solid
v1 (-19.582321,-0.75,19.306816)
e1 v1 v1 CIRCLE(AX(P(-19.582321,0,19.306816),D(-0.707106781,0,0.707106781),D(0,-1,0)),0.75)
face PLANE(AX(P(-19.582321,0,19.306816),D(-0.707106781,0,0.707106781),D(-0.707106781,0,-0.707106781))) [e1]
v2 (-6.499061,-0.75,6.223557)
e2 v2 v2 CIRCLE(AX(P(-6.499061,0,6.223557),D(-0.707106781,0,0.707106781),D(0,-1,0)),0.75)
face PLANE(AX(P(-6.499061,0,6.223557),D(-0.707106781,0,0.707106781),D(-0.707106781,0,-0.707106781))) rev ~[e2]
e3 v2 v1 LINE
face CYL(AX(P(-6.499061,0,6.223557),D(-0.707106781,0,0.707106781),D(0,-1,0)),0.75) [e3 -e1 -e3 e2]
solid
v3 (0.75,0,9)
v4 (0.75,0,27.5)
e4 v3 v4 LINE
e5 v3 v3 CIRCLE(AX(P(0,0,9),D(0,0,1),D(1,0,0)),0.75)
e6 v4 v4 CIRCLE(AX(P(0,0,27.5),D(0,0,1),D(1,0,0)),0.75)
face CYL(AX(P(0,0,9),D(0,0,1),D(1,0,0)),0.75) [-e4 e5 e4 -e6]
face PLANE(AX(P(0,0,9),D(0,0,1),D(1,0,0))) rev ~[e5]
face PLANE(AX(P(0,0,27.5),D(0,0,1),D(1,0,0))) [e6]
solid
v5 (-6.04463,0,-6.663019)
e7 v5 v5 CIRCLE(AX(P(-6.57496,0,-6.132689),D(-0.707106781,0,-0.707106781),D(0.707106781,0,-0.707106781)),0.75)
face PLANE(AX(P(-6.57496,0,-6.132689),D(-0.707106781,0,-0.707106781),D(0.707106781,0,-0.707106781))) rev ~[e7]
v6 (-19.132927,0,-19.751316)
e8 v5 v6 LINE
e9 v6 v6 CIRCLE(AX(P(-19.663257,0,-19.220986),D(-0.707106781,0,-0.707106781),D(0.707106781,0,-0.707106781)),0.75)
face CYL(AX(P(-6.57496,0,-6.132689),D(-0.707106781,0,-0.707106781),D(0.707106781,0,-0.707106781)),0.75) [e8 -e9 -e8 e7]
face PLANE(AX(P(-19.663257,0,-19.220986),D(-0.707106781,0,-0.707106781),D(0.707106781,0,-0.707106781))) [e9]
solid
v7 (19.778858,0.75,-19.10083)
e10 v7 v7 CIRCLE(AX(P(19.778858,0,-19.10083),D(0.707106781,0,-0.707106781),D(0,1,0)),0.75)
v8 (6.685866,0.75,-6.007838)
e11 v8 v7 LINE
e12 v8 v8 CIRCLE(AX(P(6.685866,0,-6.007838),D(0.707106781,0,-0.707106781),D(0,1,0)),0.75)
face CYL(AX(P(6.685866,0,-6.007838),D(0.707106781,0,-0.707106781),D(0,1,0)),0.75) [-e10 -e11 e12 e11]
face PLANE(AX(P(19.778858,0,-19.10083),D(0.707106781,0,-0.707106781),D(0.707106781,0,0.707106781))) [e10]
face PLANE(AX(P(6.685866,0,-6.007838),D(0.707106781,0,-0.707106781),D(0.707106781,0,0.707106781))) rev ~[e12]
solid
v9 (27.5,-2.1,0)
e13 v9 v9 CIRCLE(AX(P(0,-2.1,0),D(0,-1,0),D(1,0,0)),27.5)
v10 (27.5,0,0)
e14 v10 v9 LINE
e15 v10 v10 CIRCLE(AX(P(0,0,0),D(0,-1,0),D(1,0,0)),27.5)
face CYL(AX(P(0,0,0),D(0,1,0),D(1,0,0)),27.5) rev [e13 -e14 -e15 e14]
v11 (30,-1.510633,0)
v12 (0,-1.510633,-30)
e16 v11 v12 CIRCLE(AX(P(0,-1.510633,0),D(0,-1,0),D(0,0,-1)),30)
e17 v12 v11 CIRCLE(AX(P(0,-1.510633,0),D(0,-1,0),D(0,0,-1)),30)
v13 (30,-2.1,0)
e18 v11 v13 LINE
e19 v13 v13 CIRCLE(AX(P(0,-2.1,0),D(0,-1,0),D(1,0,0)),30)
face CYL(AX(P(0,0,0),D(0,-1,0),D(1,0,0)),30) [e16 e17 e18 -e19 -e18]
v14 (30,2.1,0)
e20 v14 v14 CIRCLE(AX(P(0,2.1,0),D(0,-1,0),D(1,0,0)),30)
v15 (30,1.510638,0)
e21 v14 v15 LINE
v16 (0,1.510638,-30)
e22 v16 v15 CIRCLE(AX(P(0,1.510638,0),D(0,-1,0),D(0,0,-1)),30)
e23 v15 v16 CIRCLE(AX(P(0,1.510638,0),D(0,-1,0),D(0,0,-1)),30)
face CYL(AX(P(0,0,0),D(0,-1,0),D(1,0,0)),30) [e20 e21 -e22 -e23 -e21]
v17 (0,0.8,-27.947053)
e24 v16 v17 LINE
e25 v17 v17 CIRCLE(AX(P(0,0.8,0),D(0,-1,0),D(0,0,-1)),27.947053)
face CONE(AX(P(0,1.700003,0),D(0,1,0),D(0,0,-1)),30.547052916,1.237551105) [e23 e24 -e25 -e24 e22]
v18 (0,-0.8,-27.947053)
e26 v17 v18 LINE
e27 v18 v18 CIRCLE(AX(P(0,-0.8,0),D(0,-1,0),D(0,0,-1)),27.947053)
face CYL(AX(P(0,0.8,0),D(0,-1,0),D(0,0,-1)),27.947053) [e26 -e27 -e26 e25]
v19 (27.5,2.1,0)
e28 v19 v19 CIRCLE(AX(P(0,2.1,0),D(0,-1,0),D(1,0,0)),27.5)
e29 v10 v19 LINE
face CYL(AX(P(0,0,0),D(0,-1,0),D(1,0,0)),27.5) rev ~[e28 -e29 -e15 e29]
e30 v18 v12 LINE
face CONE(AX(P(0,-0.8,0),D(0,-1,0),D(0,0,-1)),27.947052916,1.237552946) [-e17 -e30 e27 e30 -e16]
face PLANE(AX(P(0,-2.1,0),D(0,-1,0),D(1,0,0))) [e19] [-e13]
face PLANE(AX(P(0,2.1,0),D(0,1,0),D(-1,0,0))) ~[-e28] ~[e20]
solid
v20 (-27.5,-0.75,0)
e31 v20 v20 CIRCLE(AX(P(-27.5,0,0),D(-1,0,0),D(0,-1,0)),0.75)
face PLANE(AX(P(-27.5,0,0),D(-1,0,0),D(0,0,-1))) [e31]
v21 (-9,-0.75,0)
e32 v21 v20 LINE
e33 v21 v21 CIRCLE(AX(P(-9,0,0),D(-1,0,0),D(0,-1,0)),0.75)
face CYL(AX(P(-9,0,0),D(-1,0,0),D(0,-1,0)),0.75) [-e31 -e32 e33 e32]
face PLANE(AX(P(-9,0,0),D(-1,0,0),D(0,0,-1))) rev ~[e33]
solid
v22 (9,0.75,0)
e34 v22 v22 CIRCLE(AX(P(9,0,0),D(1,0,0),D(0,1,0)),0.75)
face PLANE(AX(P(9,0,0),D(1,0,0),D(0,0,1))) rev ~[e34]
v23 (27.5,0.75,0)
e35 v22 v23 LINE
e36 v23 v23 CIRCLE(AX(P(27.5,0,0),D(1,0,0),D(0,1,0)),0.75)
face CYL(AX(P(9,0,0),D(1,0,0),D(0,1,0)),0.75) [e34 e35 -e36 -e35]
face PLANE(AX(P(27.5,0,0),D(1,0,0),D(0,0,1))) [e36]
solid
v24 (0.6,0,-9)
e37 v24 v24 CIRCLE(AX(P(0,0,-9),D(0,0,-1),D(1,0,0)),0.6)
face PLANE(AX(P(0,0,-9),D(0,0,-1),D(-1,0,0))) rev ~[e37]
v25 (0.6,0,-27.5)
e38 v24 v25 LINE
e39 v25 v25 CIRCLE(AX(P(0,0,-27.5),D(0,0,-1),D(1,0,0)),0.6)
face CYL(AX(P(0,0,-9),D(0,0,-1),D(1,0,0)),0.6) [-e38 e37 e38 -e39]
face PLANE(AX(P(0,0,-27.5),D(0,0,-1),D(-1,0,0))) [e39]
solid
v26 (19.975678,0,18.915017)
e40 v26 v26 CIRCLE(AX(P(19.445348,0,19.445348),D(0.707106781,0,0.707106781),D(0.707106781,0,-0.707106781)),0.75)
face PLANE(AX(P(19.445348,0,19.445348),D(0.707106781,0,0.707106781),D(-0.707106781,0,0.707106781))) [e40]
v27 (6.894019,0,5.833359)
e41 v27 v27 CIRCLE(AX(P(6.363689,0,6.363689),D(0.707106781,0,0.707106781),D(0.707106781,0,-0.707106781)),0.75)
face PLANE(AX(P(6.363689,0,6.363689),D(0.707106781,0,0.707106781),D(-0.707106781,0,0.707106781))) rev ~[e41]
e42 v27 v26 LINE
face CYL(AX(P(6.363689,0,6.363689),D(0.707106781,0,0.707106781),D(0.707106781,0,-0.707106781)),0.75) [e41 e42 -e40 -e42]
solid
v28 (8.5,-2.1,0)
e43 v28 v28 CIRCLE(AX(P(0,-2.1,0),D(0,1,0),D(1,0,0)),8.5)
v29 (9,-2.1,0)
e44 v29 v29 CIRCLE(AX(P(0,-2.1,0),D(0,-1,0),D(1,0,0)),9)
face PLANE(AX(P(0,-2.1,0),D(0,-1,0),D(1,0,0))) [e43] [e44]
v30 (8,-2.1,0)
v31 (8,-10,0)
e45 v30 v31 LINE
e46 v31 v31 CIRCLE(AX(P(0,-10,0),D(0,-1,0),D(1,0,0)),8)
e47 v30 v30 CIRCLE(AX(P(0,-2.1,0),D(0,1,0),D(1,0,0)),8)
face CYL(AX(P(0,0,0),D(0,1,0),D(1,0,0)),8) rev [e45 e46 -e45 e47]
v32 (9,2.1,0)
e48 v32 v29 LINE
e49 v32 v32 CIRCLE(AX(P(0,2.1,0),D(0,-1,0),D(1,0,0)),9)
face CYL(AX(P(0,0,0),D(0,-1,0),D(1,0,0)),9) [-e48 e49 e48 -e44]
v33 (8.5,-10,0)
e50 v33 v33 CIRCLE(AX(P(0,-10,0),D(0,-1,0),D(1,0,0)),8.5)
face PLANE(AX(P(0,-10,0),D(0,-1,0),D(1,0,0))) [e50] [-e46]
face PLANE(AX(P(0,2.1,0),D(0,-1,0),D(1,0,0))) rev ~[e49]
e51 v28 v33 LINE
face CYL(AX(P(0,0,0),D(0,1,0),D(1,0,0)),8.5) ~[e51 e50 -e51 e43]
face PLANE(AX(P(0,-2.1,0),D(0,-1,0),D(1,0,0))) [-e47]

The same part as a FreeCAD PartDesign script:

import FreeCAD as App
import Part
import Sketcher

doc = App.newDocument("Part")
body = doc.addObject("PartDesign::Body", "Body")

# Sketch on XZ plane
sketch1 = doc.addObject("Sketcher::SketchObject", "Sketch")
body.addObject(sketch1)
sketch1.AttachmentSupport = (doc.XZ_Plane, [""])
sketch1.MapMode = "FlatFace"
sketch1.addGeometry([
    Part.Circle(App.Vector(0, 0, 0), App.Vector(0, 0, 1), 30),
    Part.Circle(App.Vector(0, 0, 0), App.Vector(0, 0, 1), 28),
], False)
sketch1.addConstraint([
    Sketcher.Constraint("Coincident", 0, 3, -1, 1),
    Sketcher.Constraint("Coincident", 1, 3, -1, 1),
    Sketcher.Constraint("Diameter", 0, 60.0),
    Sketcher.Constraint("Diameter", 1, 55.0),
])
pad1 = doc.addObject("PartDesign::Pad", "Pad")
body.addObject(pad1)
pad1.Profile = sketch1
pad1.Length = 2.1
body2 = doc.addObject("PartDesign::Body", "Body001")
doc.recompute()

body2.BaseFeature = body
doc.recompute()

mirroring = doc.addObject("Part::Mirroring", "Mirroring")
mirroring.Source = body
mirroring.Base = App.Vector(0, 0, 0)
mirroring.Normal = App.Vector(0, -1, 0)
body3 = doc.addObject("PartDesign::Body", "Body002")
body3.BaseFeature = mirroring
boolean = doc.addObject("PartDesign::Boolean", "Boolean")
body2.addObject(boolean)
boolean.Type = "Fuse"
boolean.addObjects([body3])
doc.recompute()

# Sketch on YZ plane
sketch2 = doc.addObject("Sketcher::SketchObject", "Sketch001")
body2.addObject(sketch2)
sketch2.AttachmentSupport = (doc.getObject("YZ_Plane001"), [""])
sketch2.MapMode = "FlatFace"
sketch2.addGeometry([
    Part.LineSegment(App.Vector(-1.7, -30.5, 0), App.Vector(1.7, -30.5, 0)),
    Part.LineSegment(App.Vector(1.7, -30.5, 0), App.Vector(0.8, -27.9, 0)),
    Part.LineSegment(App.Vector(0.8, -27.9, 0), App.Vector(-0.8, -27.9, 0)),
    Part.LineSegment(App.Vector(-0.8, -27.9, 0), App.Vector(-1.7, -30.5, 0)),
], False)
sketch2.addConstraint([
    Sketcher.Constraint("Coincident", 0, 2, 1, 1),
    Sketcher.Constraint("Coincident", 1, 2, 2, 1),
    Sketcher.Constraint("Coincident", 2, 2, 3, 1),
    Sketcher.Constraint("Coincident", 3, 2, 0, 1),
    Sketcher.Constraint("Horizontal", 0),
    Sketcher.Constraint("Horizontal", 2),
    Sketcher.Constraint("Equal", 1, 3),
    Sketcher.Constraint("DistanceX", 0, 1, 0, 2, 3.4),
    Sketcher.Constraint("DistanceX", 2, 2, 2, 1, 1.6),
    Sketcher.Constraint("DistanceX", -1, 1, 1, 2, 0.8),
    Sketcher.Constraint("DistanceY", 0, 2, 1, 2, 2.6),
    Sketcher.Constraint("DistanceY", 0, 2, -1, 1, 30.547053),
])
groove = doc.addObject("PartDesign::Groove", "Groove")
body2.addObject(groove)
groove.Profile = sketch2
groove.ReferenceAxis = (sketch2, ["H_Axis"])
groove.Angle = 360
body4 = doc.addObject("PartDesign::Body", "Body003")

# Sketch on XZ plane
sketch3 = doc.addObject("Sketcher::SketchObject", "Sketch002")
body4.addObject(sketch3)
sketch3.AttachmentSupport = (doc.getObject("XZ_Plane003"), [""])
sketch3.MapMode = "FlatFace"
sketch3.addGeometry([
    Part.Circle(App.Vector(0, 0, 0), App.Vector(0, 0, 1), 8),
    Part.Circle(App.Vector(0, 0, 0), App.Vector(0, 0, 1), 8),
], False)
sketch3.addConstraint([
    Sketcher.Constraint("Coincident", 0, 3, -1, 1),
    Sketcher.Constraint("Coincident", 1, 3, -1, 1),
    Sketcher.Constraint("Diameter", 0, 17.0),
    Sketcher.Constraint("Diameter", 1, 16.0),
])
pad2 = doc.addObject("PartDesign::Pad", "Pad001")
body4.addObject(pad2)
pad2.Profile = sketch3
pad2.Length = 10

# Sketch on XZ plane
sketch4 = doc.addObject("Sketcher::SketchObject", "Sketch003")
body4.addObject(sketch4)
sketch4.AttachmentSupport = (doc.getObject("XZ_Plane003"), [""])
sketch4.MapMode = "FlatFace"
sketch4.addGeometry(Part.Circle(App.Vector(0, 0, 0), App.Vector(0, 0, 1), 9), False)
sketch4.addConstraint([
    Sketcher.Constraint("Coincident", 0, 3, -1, 1),
    Sketcher.Constraint("Diameter", 0, 18.0),
])
pad3 = doc.addObject("PartDesign::Pad", "Pad002")
body4.addObject(pad3)
pad3.Profile = sketch4
pad3.Length = 2.1

# Sketch on XZ plane
sketch5 = doc.addObject("Sketcher::SketchObject", "Sketch004")
body4.addObject(sketch5)
sketch5.AttachmentSupport = (doc.getObject("XZ_Plane003"), [""])
sketch5.MapMode = "FlatFace"
sketch5.addGeometry(Part.Circle(App.Vector(0, 0, 0), App.Vector(0, 0, 1), 9), False)
sketch5.addConstraint([
    Sketcher.Constraint("Coincident", 0, 3, -1, 1),
    Sketcher.Constraint("Diameter", 0, 18.0),
])
pad4 = doc.addObject("PartDesign::Pad", "Pad003")
body4.addObject(pad4)
pad4.Profile = sketch5
pad4.Length = 2.1
pad4.Reversed = True
body5 = doc.addObject("PartDesign::Body", "Body004")

# Sketch on YZ plane
sketch6 = doc.addObject("Sketcher::SketchObject", "Sketch005")
body5.addObject(sketch6)
sketch6.AttachmentSupport = (doc.getObject("YZ_Plane004"), [""])
sketch6.MapMode = "FlatFace"
sketch6.AttachmentOffset = App.Placement(App.Vector(0, 0, 9), App.Rotation())
sketch6.addGeometry(Part.Circle(App.Vector(0, 0, 0), App.Vector(0, 0, 1), 0.8), False)
sketch6.addConstraint([
    Sketcher.Constraint("Coincident", 0, 3, -1, 1),
    Sketcher.Constraint("Diameter", 0, 1.5),
])

# Sketch on XY plane
sketch7 = doc.addObject("Sketcher::SketchObject", "Sketch006")
body5.addObject(sketch7)
sketch7.AttachmentSupport = (doc.getObject("XY_Plane004"), [""])
sketch7.MapMode = "FlatFace"
sketch7.addGeometry(Part.LineSegment(App.Vector(9, 0, 0), App.Vector(28, 0, 0)), False)
sketch7.addConstraint([
    Sketcher.Constraint("Horizontal", 0),
    Sketcher.Constraint("PointOnObject", 0, 1, -1),
    Sketcher.Constraint("DistanceX", 0, 1, 0, 2, 18.5),
    Sketcher.Constraint("DistanceX", -1, 1, 0, 1, 9.0),
])
doc.recompute()

additivepipe = doc.addObject("PartDesign::AdditivePipe", "AdditivePipe")
body5.addObject(additivepipe)
additivepipe.Profile = sketch6
additivepipe.Spine = (sketch7, ["Edge1"])
body6 = doc.addObject("PartDesign::Body", "Body005")

# Sketch on an angled plane
sketch8 = doc.addObject("Sketcher::SketchObject", "Sketch007")
body6.addObject(sketch8)
sketch8.Placement = App.Placement(App.Vector(6.346852, 0, -6.346852), App.Rotation(App.Vector(0, 1, 0), App.Vector(0.707106781, 0, 0.707106781), App.Vector(0.707106781, 0, -0.707106781), "ZXY"))
sketch8.addGeometry(Part.Circle(App.Vector(0, 0.5, 0), App.Vector(0, 0, 1), 0.8), False)
sketch8.addConstraint([
    Sketcher.Constraint("PointOnObject", 0, 3, -2),
    Sketcher.Constraint("Diameter", 0, 1.5),
    Sketcher.Constraint("DistanceY", -1, 1, 0, 3, 0.479439),
])

# Sketch on an angled plane
sketch9 = doc.addObject("Sketcher::SketchObject", "Sketch008")
body6.addObject(sketch9)
sketch9.Placement = App.Placement(App.Vector(0.466339, 0, 0.466339), App.Rotation(App.Vector(0.707106781, 0, -0.707106781), App.Vector(0, 0.999999999, 0), App.Vector(0.707106781, 0, 0.707106781), "ZXY"))
sketch9.addGeometry(Part.LineSegment(App.Vector(9, 0, 0), App.Vector(27, 0, 0)), False)
sketch9.addConstraint([
    Sketcher.Constraint("Horizontal", 0),
    Sketcher.Constraint("PointOnObject", 0, 1, -1),
    Sketcher.Constraint("DistanceX", 0, 1, 0, 2, 18.516287),
    Sketcher.Constraint("DistanceX", -1, 1, 0, 2, 27.492091),
])
doc.recompute()

additivepipe2 = doc.addObject("PartDesign::AdditivePipe", "AdditivePipe001")
body6.addObject(additivepipe2)
additivepipe2.Profile = sketch8
additivepipe2.Spine = (sketch9, ["Edge1"])
body7 = doc.addObject("PartDesign::Body", "Body006")

# Sketch on XY plane
sketch10 = doc.addObject("Sketcher::SketchObject", "Sketch009")
body7.addObject(sketch10)
sketch10.AttachmentSupport = (doc.getObject("XY_Plane006"), [""])
sketch10.MapMode = "FlatFace"
sketch10.AttachmentOffset = App.Placement(App.Vector(0, 0, -9), App.Rotation())
sketch10.addGeometry(Part.Circle(App.Vector(0, 0, 0), App.Vector(0, 0, 1), 0.6), False)
sketch10.addConstraint([
    Sketcher.Constraint("Coincident", 0, 3, -1, 1),
    Sketcher.Constraint("Diameter", 0, 1.2),
])

# Sketch on XZ plane
sketch11 = doc.addObject("Sketcher::SketchObject", "Sketch010")
body7.addObject(sketch11)
sketch11.AttachmentSupport = (doc.getObject("XZ_Plane006"), [""])
sketch11.MapMode = "FlatFace"
sketch11.addGeometry(Part.LineSegment(App.Vector(0, -9, 0), App.Vector(0, -28, 0)), False)
sketch11.addConstraint([
    Sketcher.Constraint("Vertical", 0),
    Sketcher.Constraint("PointOnObject", 0, 1, -2),
    Sketcher.Constraint("DistanceY", 0, 2, 0, 1, 18.5),
    Sketcher.Constraint("DistanceY", 0, 1, -1, 1, 9.0),
])
doc.recompute()

additivepipe3 = doc.addObject("PartDesign::AdditivePipe", "AdditivePipe002")
body7.addObject(additivepipe3)
additivepipe3.Profile = sketch10
additivepipe3.Spine = (sketch11, ["Edge1"])
body8 = doc.addObject("PartDesign::Body", "Body007")

# Sketch on an angled plane
sketch12 = doc.addObject("Sketcher::SketchObject", "Sketch011")
body8.addObject(sketch12)
sketch12.Placement = App.Placement(App.Vector(-6.353825, 0, -6.353825), App.Rotation(App.Vector(0.707106781, 0, -0.707106781), App.Vector(0, -0.999999999, 0), App.Vector(-0.707106781, 0, -0.707106781), "ZXY"))
sketch12.addGeometry(Part.Circle(App.Vector(-0.3, 0, 0), App.Vector(0, 0, 1), 0.8), False)
sketch12.addConstraint([
    Sketcher.Constraint("PointOnObject", 0, 3, -1),
    Sketcher.Constraint("Diameter", 0, 1.5),
    Sketcher.Constraint("DistanceX", 0, 3, -1, 1, 0.312733),
])

# Sketch on an angled plane
sketch13 = doc.addObject("Sketcher::SketchObject", "Sketch012")
body8.addObject(sketch13)
sketch13.Placement = App.Placement(App.Vector(-0.359044, 0, 0.359044), App.Rotation(App.Vector(-0.707106781, 0, -0.707106781), App.Vector(0, 0.999999999, 0), App.Vector(0.707106781, 0, -0.707106781), "ZXY"))
sketch13.addGeometry(Part.LineSegment(App.Vector(9, 0, 0), App.Vector(27, 0, 0)), False)
sketch13.addConstraint([
    Sketcher.Constraint("Horizontal", 0),
    Sketcher.Constraint("PointOnObject", 0, 1, -1),
    Sketcher.Constraint("DistanceX", 0, 1, 0, 2, 18.509647),
    Sketcher.Constraint("DistanceX", -1, 1, 0, 2, 27.495312),
])
doc.recompute()

additivepipe4 = doc.addObject("PartDesign::AdditivePipe", "AdditivePipe003")
body8.addObject(additivepipe4)
additivepipe4.Profile = sketch12
additivepipe4.Spine = (sketch13, ["Edge1"])
body9 = doc.addObject("PartDesign::Body", "Body008")

# Sketch on YZ plane
sketch14 = doc.addObject("Sketcher::SketchObject", "Sketch013")
body9.addObject(sketch14)
sketch14.AttachmentSupport = (doc.getObject("YZ_Plane008"), [""])
sketch14.MapMode = "FlatFace"
sketch14.AttachmentOffset = App.Placement(App.Vector(0, 0, -9), App.Rotation())
sketch14.addGeometry(Part.Circle(App.Vector(0, 0, 0), App.Vector(0, 0, 1), 0.8), False)
sketch14.addConstraint([
    Sketcher.Constraint("Coincident", 0, 3, -1, 1),
    Sketcher.Constraint("Diameter", 0, 1.5),
])

# Sketch on XY plane
sketch15 = doc.addObject("Sketcher::SketchObject", "Sketch014")
body9.addObject(sketch15)
sketch15.AttachmentSupport = (doc.getObject("XY_Plane008"), [""])
sketch15.MapMode = "FlatFace"
sketch15.addGeometry(Part.LineSegment(App.Vector(-9, 0, 0), App.Vector(-28, 0, 0)), False)
sketch15.addConstraint([
    Sketcher.Constraint("Horizontal", 0),
    Sketcher.Constraint("PointOnObject", 0, 1, -1),
    Sketcher.Constraint("DistanceX", 0, 2, 0, 1, 18.5),
    Sketcher.Constraint("DistanceX", 0, 1, -1, 1, 9.0),
])
doc.recompute()

additivepipe5 = doc.addObject("PartDesign::AdditivePipe", "AdditivePipe004")
body9.addObject(additivepipe5)
additivepipe5.Profile = sketch14
additivepipe5.Spine = (sketch15, ["Edge1"])
body10 = doc.addObject("PartDesign::Body", "Body009")

# Sketch on an angled plane
sketch16 = doc.addObject("Sketcher::SketchObject", "Sketch015")
body10.addObject(sketch16)
sketch16.Placement = App.Placement(App.Vector(-6.361309, 0, 6.361309), App.Rotation(App.Vector(0, -1, 0), App.Vector(0.707106781, 0, 0.707106781), App.Vector(-0.707106781, 0, 0.707106781), "ZXY"))
sketch16.addGeometry(Part.Circle(App.Vector(0, -0.2, 0), App.Vector(0, 0, 1), 0.8), False)
sketch16.addConstraint([
    Sketcher.Constraint("PointOnObject", 0, 3, -2),
    Sketcher.Constraint("Diameter", 0, 1.5),
    Sketcher.Constraint("DistanceY", 0, 3, -1, 1, 0.194811),
])

# Sketch on an angled plane
sketch17 = doc.addObject("Sketcher::SketchObject", "Sketch016")
body10.addObject(sketch17)
sketch17.Placement = App.Placement(App.Vector(-0.183715, 0, -0.183715), App.Rotation(App.Vector(-0.707106781, 0, 0.707106781), App.Vector(0, 0.999999999, 0), App.Vector(-0.707106781, 0, -0.707106781), "ZXY"))
sketch17.addGeometry(Part.LineSegment(App.Vector(9, 0, 0), App.Vector(27, 0, 0)), False)
sketch17.addConstraint([
    Sketcher.Constraint("Horizontal", 0),
    Sketcher.Constraint("PointOnObject", 0, 1, -1),
    Sketcher.Constraint("DistanceX", 0, 1, 0, 2, 18.502524),
    Sketcher.Constraint("DistanceX", -1, 1, 0, 1, 8.996249),
])
doc.recompute()

additivepipe6 = doc.addObject("PartDesign::AdditivePipe", "AdditivePipe005")
body10.addObject(additivepipe6)
additivepipe6.Profile = sketch16
additivepipe6.Spine = (sketch17, ["Edge1"])
body11 = doc.addObject("PartDesign::Body", "Body010")

# Sketch on XY plane
sketch18 = doc.addObject("Sketcher::SketchObject", "Sketch017")
body11.addObject(sketch18)
sketch18.AttachmentSupport = (doc.getObject("XY_Plane010"), [""])
sketch18.MapMode = "FlatFace"
sketch18.AttachmentOffset = App.Placement(App.Vector(0, 0, 9), App.Rotation())
sketch18.addGeometry(Part.Circle(App.Vector(0, 0, 0), App.Vector(0, 0, 1), 0.8), False)
sketch18.addConstraint([
    Sketcher.Constraint("Coincident", 0, 3, -1, 1),
    Sketcher.Constraint("Diameter", 0, 1.5),
])

# Sketch on XZ plane
sketch19 = doc.addObject("Sketcher::SketchObject", "Sketch018")
body11.addObject(sketch19)
sketch19.AttachmentSupport = (doc.getObject("XZ_Plane010"), [""])
sketch19.MapMode = "FlatFace"
sketch19.addGeometry(Part.LineSegment(App.Vector(0, 9, 0), App.Vector(0, 28, 0)), False)
sketch19.addConstraint([
    Sketcher.Constraint("Vertical", 0),
    Sketcher.Constraint("PointOnObject", 0, 1, -2),
    Sketcher.Constraint("DistanceY", 0, 1, 0, 2, 18.5),
    Sketcher.Constraint("DistanceY", -1, 1, 0, 1, 9.0),
])
doc.recompute()

additivepipe7 = doc.addObject("PartDesign::AdditivePipe", "AdditivePipe006")
body11.addObject(additivepipe7)
additivepipe7.Profile = sketch18
additivepipe7.Spine = (sketch19, ["Edge1"])
body12 = doc.addObject("PartDesign::Body", "Body011")

# Sketch on an angled plane
sketch20 = doc.addObject("Sketcher::SketchObject", "Sketch019")
body12.addObject(sketch20)
sketch20.Placement = App.Placement(App.Vector(6.363689, 0, 6.363689), App.Rotation(App.Vector(0.707106781, 0, -0.707106781), App.Vector(0, 0.999999999, 0), App.Vector(0.707106781, 0, 0.707106781), "ZXY"))
sketch20.addGeometry(Part.Circle(App.Vector(0, 0, 0), App.Vector(0, 0, 1), 0.8), False)
sketch20.addConstraint([
    Sketcher.Constraint("Coincident", 0, 3, -1, 1),
    Sketcher.Constraint("Diameter", 0, 1.5),
])

# Sketch on an angled plane
sketch21 = doc.addObject("Sketcher::SketchObject", "Sketch020")
body12.addObject(sketch21)
sketch21.Placement = App.Placement(App.Vector(-0.05881, 0, 0.05881), App.Rotation(App.Vector(0.707106781, 0, 0.707106781), App.Vector(0, 0.999999999, 0), App.Vector(-0.707106781, 0, 0.707106781), "ZXY"))
sketch21.addGeometry(Part.LineSegment(App.Vector(9, 0, 0), App.Vector(27, 0, 0)), False)
sketch21.addConstraint([
    Sketcher.Constraint("Horizontal", 0),
    Sketcher.Constraint("PointOnObject", 0, 1, -1),
    Sketcher.Constraint("DistanceX", 0, 1, 0, 2, 18.500259),
    Sketcher.Constraint("DistanceX", -1, 1, 0, 1, 8.999616),
])
doc.recompute()

additivepipe8 = doc.addObject("PartDesign::AdditivePipe", "AdditivePipe007")
body12.addObject(additivepipe8)
additivepipe8.Profile = sketch20
additivepipe8.Spine = (sketch21, ["Edge1"])
mirroring.Visibility = False

doc.recompute()
